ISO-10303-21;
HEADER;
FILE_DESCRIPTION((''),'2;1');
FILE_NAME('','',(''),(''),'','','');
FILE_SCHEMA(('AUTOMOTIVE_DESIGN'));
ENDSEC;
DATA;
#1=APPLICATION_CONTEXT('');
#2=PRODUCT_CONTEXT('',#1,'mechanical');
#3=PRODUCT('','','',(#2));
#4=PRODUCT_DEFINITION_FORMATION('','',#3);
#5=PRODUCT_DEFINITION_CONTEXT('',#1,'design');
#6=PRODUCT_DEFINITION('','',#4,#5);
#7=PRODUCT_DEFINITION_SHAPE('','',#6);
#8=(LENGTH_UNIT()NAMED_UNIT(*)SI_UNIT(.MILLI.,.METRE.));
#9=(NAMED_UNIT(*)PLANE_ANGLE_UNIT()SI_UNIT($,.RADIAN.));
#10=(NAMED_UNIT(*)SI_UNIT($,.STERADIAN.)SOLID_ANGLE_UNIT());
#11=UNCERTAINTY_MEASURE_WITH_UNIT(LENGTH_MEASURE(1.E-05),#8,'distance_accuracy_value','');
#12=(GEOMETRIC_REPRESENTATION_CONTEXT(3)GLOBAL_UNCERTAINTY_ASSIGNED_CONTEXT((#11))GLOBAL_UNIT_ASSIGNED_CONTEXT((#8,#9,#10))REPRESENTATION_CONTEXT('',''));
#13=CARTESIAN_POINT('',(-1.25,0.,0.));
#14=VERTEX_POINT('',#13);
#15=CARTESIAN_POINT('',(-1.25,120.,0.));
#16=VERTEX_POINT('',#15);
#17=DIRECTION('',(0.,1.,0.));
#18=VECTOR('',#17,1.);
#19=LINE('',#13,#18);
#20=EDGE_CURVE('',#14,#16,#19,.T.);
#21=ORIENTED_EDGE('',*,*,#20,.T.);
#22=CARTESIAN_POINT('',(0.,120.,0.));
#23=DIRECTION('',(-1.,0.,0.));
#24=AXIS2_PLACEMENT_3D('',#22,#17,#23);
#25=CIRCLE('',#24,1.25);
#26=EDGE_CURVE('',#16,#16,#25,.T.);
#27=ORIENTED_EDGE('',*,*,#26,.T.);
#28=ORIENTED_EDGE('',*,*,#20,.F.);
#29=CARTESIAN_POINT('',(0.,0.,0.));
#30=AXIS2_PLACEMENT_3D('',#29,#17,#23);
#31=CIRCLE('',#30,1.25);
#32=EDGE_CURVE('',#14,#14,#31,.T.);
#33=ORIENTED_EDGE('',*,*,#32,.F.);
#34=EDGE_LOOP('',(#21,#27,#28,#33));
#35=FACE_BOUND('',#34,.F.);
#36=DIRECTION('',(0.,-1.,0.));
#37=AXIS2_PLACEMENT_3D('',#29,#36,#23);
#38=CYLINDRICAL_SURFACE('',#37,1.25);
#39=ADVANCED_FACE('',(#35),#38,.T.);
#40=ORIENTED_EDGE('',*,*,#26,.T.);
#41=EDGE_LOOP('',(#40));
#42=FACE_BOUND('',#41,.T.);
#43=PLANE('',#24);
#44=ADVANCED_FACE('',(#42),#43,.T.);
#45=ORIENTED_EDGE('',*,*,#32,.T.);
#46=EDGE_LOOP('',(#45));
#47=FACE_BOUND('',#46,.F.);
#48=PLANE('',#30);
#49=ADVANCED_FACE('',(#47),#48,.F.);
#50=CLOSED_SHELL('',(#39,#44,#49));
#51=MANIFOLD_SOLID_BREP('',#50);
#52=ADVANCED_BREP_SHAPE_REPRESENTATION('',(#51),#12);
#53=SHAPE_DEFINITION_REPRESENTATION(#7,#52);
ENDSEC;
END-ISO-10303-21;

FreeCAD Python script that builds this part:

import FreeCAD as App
import Part
import Sketcher

V = App.Vector

doc = App.newDocument("Part")
body = doc.addObject("PartDesign::Body", "Body")

# Sketch on XZ plane
sketch1 = doc.addObject("Sketcher::SketchObject", "Sketch")
body.addObject(sketch1)
sketch1.AttachmentSupport = (doc.XZ_Plane, [""])
sketch1.MapMode = "FlatFace"
sketch1.addGeometry(Part.Circle(V(0, 0, 0), V(0, 0, 1), 1.25), False)
sketch1.addConstraint([
    Sketcher.Constraint("Coincident", 0, 3, -1, 1),
    Sketcher.Constraint("Diameter", 0, 2.5),
])
pad1 = doc.addObject("PartDesign::Pad", "Pad")
body.addObject(pad1)
pad1.Profile = sketch1
pad1.Length = 120
pad1.Reversed = True

doc.recompute()
